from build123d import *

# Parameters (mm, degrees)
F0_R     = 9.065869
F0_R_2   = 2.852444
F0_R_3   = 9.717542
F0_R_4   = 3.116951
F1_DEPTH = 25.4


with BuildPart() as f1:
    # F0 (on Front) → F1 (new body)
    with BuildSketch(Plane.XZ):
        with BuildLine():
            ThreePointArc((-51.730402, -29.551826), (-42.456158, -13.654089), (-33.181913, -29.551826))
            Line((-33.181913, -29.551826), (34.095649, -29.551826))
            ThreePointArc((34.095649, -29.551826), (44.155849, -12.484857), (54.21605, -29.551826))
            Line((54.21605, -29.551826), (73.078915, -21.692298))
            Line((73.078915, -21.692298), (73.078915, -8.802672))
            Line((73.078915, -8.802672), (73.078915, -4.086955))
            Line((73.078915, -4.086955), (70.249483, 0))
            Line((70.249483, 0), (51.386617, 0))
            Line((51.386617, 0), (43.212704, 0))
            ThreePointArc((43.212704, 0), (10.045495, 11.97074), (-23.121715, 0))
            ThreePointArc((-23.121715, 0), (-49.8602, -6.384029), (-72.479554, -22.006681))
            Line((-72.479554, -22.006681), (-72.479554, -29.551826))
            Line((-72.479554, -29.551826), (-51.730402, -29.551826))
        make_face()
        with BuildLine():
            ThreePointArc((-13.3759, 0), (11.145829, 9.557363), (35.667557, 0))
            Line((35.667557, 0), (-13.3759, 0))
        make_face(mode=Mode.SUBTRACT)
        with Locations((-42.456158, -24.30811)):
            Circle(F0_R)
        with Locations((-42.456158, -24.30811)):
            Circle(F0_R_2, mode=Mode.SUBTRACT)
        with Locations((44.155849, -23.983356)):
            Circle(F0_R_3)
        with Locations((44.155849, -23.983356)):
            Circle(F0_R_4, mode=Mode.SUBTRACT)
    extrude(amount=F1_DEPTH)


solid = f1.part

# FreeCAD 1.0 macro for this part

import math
import FreeCAD as App
import Part
import Sketcher
from FreeCAD import Vector
Q = App.Units.Quantity

doc = App.newDocument("Part")
body = doc.addObject("PartDesign::Body", "Body")
body.AllowCompound = True

# Sketch on XZ plane
sketch1 = body.newObject("Sketcher::SketchObject", "Sketch")
sketch1.AttachmentSupport = (doc.getObject("XZ_Plane"), [""])
sketch1.MapMode = "FlatFace"
sketch1.addGeometry([
    Part.ArcOfCircle(Part.Circle(Vector(-42.456158, -24.30811, 0), Vector(0, 0, 1), 10.654021), math.radians(-29.484089), math.radians(209.484089)),  # 0
    Part.LineSegment(Vector(-33.181913, -29.551826, 0), Vector(34.095649, -29.551826, 0)),  # 1
    Part.ArcOfCircle(Part.Circle(Vector(44.15585, -23.983356, 0), Vector(0, 0, 1), 11.498499), math.radians(-28.965176), math.radians(208.965176)),  # 2
    Part.LineSegment(Vector(54.21605, -29.551826, 0), Vector(73.078915, -21.692298, 0)),  # 3
    Part.LineSegment(Vector(73.078915, -21.692298, 0), Vector(73.078915, -4.086955, 0)),  # 4
    Part.LineSegment(Vector(73.078915, -4.086955, 0), Vector(70.249483, 0, 0)),  # 5
    Part.LineSegment(Vector(70.249483, 0, 0), Vector(43.212704, 0, 0)),  # 6
    Part.ArcOfCircle(Part.Circle(Vector(10.045495, -39.962658, 0), Vector(0, 0, 1), 51.933398), math.radians(50.308852), math.radians(129.691148)),  # 7
    Part.ArcOfCircle(Part.Circle(Vector(-19.437448, -74.617912, 0), Vector(0, 0, 1), 74.708812), math.radians(92.826689), math.radians(135.233662)),  # 8
    Part.LineSegment(Vector(-72.479554, -22.006681, 0), Vector(-72.479554, -29.551826, 0)),  # 9
    Part.LineSegment(Vector(-72.479554, -29.551826, 0), Vector(-51.730402, -29.551826, 0)),  # 10
    Part.LineSegment(Vector(35.667557, 0, 0), Vector(-13.3759, 0, 0)),  # 11
    Part.ArcOfCircle(Part.Circle(Vector(11.145829, -26.679534, 0), Vector(0, 0, 1), 36.236897), math.radians(47.413222), math.radians(132.586778)),  # 12
    Part.Circle(Vector(-42.456158, -24.30811, 0), Vector(0, 0, 1), 9.065869),  # 13
    Part.Circle(Vector(-42.456158, -24.30811, 0), Vector(0, 0, 1), 2.852444),  # 14
    Part.Circle(Vector(44.155849, -23.983356, 0), Vector(0, 0, 1), 9.717542),  # 15
    Part.Circle(Vector(44.155849, -23.983356, 0), Vector(0, 0, 1), 3.116951),  # 16
], False)
sketch1.addConstraint([
    Sketcher.Constraint("Coincident", 0, 1, 1, 1),
    Sketcher.Constraint("Coincident", 1, 2, 2, 2),
    Sketcher.Constraint("Coincident", 2, 1, 3, 1),
    Sketcher.Constraint("Coincident", 3, 2, 4, 1),
    Sketcher.Constraint("Coincident", 4, 2, 5, 1),
    Sketcher.Constraint("Coincident", 5, 2, 6, 1),
    Sketcher.Constraint("Coincident", 6, 2, 7, 1),
    Sketcher.Constraint("Coincident", 7, 2, 8, 1),
    Sketcher.Constraint("Coincident", 8, 2, 9, 1),
    Sketcher.Constraint("Coincident", 9, 2, 10, 1),
    Sketcher.Constraint("Coincident", 10, 2, 0, 2),
    Sketcher.Constraint("Coincident", 11, 1, 12, 1),
    Sketcher.Constraint("Coincident", 12, 2, 11, 2),
    Sketcher.Constraint("Horizontal", 1),
    Sketcher.Constraint("Vertical", 4),
    Sketcher.Constraint("Horizontal", 6),
    Sketcher.Constraint("Vertical", 9),
    Sketcher.Constraint("Horizontal", 10),
    Sketcher.Constraint("Horizontal", 11),
    Sketcher.Constraint("Coincident", 13, 3, 0, 3),
    Sketcher.Constraint("Coincident", 14, 3, 0, 3),
    Sketcher.Constraint("Coincident", 15, 3, 2, 3),
    Sketcher.Constraint("Coincident", 16, 3, 2, 3),
    Sketcher.Constraint("PointOnObject", 5, 2, -1),
    Sketcher.Constraint("PointOnObject", 7, 2, -1),
    Sketcher.Constraint("PointOnObject", 11, 1, -1),
    Sketcher.Constraint("Horizontal", 1, 2, 2, 1),
    Sketcher.Constraint("Horizontal", 2, 1, 9, 2),
    Sketcher.Constraint("Diameter", 16, 6.233902),
    Sketcher.Constraint("Radius", 2, 11.498499),
    Sketcher.Constraint("Diameter", 14, 5.704888),
    Sketcher.Constraint("Radius", 0, 10.654021),
    Sketcher.Constraint("Radius", 8, 74.708812),
    Sketcher.Constraint("Diameter", 13, 18.131738),
    Sketcher.Constraint("Diameter", 15, 19.435084),
    Sketcher.Constraint("Radius", 7, 51.933398),
    Sketcher.Constraint("Radius", 12, 36.236897),
    Sketcher.Constraint("DistanceX", 6, 2, 6, 1, 27.036779),
    Sketcher.Constraint("DistanceX", 10, 1, 10, 2, 20.749152),
    Sketcher.Constraint("DistanceY", 3, 2, -1, 1, 21.692298),
    Sketcher.Constraint("DistanceX", 10, 2, -1, 1, 51.730402),
    Sketcher.Constraint("DistanceX", 12, 2, -1, 1, 13.3759),
    Sketcher.Constraint("DistanceY", 7, 3, 2, 3, 15.979301),
    Sketcher.Constraint("DistanceY", 8, 3, 0, 3, 50.309802),
    Sketcher.Constraint("DistanceX", 1, 2, 15, 3, 10.0602),
    Sketcher.Constraint("DistanceY", 2, 3, 4, 2, 19.896401),
    Sketcher.Constraint("DistanceX", 0, 1, 7, 2, 10.060198),
    Sketcher.Constraint("Distance", 3, 20.434771),
    Sketcher.Constraint("DistanceX", 1, 1, 1, 2, 67.277562),
    Sketcher.Constraint("DistanceX", 11, 2, 11, 1, 49.043457),
    Sketcher.Constraint("DistanceY", 4, 1, 4, 2, 17.605343),
    Sketcher.Constraint("DistanceY", 9, 2, 9, 1, 7.545145),
])
pad1 = body.newObject("PartDesign::Pad", "Pad")
pad1.Profile = sketch1
pad1.Length = Q("1 in")

doc.recompute()
